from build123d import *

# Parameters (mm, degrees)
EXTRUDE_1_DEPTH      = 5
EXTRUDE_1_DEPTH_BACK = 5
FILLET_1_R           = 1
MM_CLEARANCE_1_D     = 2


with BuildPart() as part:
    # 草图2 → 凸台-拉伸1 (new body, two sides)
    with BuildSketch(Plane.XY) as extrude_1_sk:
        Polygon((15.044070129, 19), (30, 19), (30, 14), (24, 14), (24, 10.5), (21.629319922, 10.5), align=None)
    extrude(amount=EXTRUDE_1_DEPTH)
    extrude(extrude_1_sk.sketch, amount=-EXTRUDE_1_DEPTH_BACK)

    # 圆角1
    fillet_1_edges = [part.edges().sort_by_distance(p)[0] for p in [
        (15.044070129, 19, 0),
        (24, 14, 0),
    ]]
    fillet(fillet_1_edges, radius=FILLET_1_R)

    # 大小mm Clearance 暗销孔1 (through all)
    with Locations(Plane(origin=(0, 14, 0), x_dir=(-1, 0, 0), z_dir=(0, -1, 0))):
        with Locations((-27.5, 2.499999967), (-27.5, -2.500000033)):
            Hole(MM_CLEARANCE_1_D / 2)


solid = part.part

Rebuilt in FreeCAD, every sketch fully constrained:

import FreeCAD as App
import Part
import Sketcher

V = App.Vector


def edges_at(feature, points):
    """Names of the edges that pass closest to the given points."""
    edges = feature.Shape.Edges
    near = lambda p: min(range(len(edges)), key=lambda i: edges[i].distToShape(Part.Vertex(*p))[0])
    return sorted({f"Edge{near(p) + 1}" for p in points})


def add_polygon(sketch, points):
    """Adds a closed chain of lines whose ends are joined by coincident constraints."""
    first, n = sketch.GeometryCount, len(points)
    for a, b in zip(points, points[1:] + points[:1]):
        sketch.addGeometry(Part.LineSegment(App.Vector(*a, 0), App.Vector(*b, 0)), False)
    for i in range(n):
        sketch.addConstraint(Sketcher.Constraint("Coincident", first + i, 2, first + (i + 1) % n, 1))

doc = App.newDocument("Part")
params = doc.addObject("Spreadsheet::Sheet", "Params")
for row, (alias, value) in enumerate([
    ("sketch1_width", "6 mm"),
    ("sketch1_height", "5 mm"),
    ("sketch1_height2", "3.5 mm"),
    ("pad1_length", "5 mm"),
    ("pad1_length2", "5 mm"),
    ("fillet_radius", "1 mm"),
    ("sketch2_diameter", "2 mm"),
    ("hole_diameter", "2 mm"),
], start=1):
    params.set(f"A{row}", alias)
    params.set(f"B{row}", "=" + value)
    params.setAlias(f"B{row}", alias)

body = doc.addObject("PartDesign::Body", "Body")

sketch1 = body.newObject("Sketcher::SketchObject", "Sketch")
sketch1.AttachmentSupport = (doc.getObject("XY_Plane"), [""])
sketch1.MapMode = "FlatFace"
add_polygon(sketch1, [(30, 19), (15, 19), (21.6, 10.5), (24, 10.5), (24, 14), (30, 14)])
sketch1.addConstraint([
    Sketcher.Constraint("Horizontal", 0),
    Sketcher.Constraint("Horizontal", 2),
    Sketcher.Constraint("Vertical", 3),
    Sketcher.Constraint("Horizontal", 4),
    Sketcher.Constraint("Vertical", 5),
    Sketcher.Constraint("DistanceX", 4, 1, 4, 2, 6.0),
    Sketcher.Constraint("DistanceY", 5, 1, 5, 2, 5.0),
    Sketcher.Constraint("DistanceY", 3, 1, 3, 2, 3.5),
    Sketcher.Constraint("DistanceY", -1, 1, 0, 2, 19.0),
    Sketcher.Constraint("DistanceX", -1, 1, 2, 2, 24.0),
    Sketcher.Constraint("DistanceX", 0, 2, 0, 1, 14.95593),
    Sketcher.Constraint("DistanceX", 2, 1, 2, 2, 2.37068),
])
sketch1.setExpression("Constraints[11]", "Params.sketch1_width")
sketch1.setExpression("Constraints[12]", "Params.sketch1_height")
sketch1.setExpression("Constraints[13]", "Params.sketch1_height2")
pad1 = body.newObject("PartDesign::Pad", "Pad")
pad1.Profile = sketch1
pad1.Type = "TwoLengths"
pad1.setExpression("Length", "Params.pad1_length")
pad1.setExpression("Length2", "Params.pad1_length2")
doc.recompute()

fillet = body.newObject("PartDesign::Fillet", "Fillet")
fillet.Base = (pad1, edges_at(pad1, [(15.044, 19, 0), (24, 14, 0)]))
fillet.setExpression("Radius", "Params.fillet_radius")

sketch2 = body.newObject("Sketcher::SketchObject", "Sketch001")
sketch2.AttachmentSupport = (doc.getObject("XZ_Plane"), [""])
sketch2.MapMode = "FlatFace"
sketch2.AttachmentOffset = App.Placement(V(0, 0, -14), App.Rotation())
sketch2.addGeometry([
    Part.Circle(V(27.5, -2.5, 0), V(0, 0, 1), 1),
    Part.Circle(V(27.5, 2.5, 0), V(0, 0, 1), 1),
], False)
sketch2.addConstraint([
    Sketcher.Constraint("Equal", 0, 1),
    Sketcher.Constraint("Symmetric", 0, 3, 1, 3, -1),
    Sketcher.Constraint("Diameter", 0, 2.0),
    Sketcher.Constraint("DistanceY", 0, 3, 1, 3, 5.0),
    Sketcher.Constraint("DistanceX", -1, 1, 0, 3, 27.5),
])
sketch2.setExpression("Constraints[2]", "Params.sketch2_diameter")
doc.recompute()
hole = body.newObject("PartDesign::Hole", "Hole")
hole.Profile = sketch2
hole.ThreadType = "None"
hole.setExpression("Diameter", "Params.hole_diameter")
hole.DepthType = "ThroughAll"

doc.recompute()
